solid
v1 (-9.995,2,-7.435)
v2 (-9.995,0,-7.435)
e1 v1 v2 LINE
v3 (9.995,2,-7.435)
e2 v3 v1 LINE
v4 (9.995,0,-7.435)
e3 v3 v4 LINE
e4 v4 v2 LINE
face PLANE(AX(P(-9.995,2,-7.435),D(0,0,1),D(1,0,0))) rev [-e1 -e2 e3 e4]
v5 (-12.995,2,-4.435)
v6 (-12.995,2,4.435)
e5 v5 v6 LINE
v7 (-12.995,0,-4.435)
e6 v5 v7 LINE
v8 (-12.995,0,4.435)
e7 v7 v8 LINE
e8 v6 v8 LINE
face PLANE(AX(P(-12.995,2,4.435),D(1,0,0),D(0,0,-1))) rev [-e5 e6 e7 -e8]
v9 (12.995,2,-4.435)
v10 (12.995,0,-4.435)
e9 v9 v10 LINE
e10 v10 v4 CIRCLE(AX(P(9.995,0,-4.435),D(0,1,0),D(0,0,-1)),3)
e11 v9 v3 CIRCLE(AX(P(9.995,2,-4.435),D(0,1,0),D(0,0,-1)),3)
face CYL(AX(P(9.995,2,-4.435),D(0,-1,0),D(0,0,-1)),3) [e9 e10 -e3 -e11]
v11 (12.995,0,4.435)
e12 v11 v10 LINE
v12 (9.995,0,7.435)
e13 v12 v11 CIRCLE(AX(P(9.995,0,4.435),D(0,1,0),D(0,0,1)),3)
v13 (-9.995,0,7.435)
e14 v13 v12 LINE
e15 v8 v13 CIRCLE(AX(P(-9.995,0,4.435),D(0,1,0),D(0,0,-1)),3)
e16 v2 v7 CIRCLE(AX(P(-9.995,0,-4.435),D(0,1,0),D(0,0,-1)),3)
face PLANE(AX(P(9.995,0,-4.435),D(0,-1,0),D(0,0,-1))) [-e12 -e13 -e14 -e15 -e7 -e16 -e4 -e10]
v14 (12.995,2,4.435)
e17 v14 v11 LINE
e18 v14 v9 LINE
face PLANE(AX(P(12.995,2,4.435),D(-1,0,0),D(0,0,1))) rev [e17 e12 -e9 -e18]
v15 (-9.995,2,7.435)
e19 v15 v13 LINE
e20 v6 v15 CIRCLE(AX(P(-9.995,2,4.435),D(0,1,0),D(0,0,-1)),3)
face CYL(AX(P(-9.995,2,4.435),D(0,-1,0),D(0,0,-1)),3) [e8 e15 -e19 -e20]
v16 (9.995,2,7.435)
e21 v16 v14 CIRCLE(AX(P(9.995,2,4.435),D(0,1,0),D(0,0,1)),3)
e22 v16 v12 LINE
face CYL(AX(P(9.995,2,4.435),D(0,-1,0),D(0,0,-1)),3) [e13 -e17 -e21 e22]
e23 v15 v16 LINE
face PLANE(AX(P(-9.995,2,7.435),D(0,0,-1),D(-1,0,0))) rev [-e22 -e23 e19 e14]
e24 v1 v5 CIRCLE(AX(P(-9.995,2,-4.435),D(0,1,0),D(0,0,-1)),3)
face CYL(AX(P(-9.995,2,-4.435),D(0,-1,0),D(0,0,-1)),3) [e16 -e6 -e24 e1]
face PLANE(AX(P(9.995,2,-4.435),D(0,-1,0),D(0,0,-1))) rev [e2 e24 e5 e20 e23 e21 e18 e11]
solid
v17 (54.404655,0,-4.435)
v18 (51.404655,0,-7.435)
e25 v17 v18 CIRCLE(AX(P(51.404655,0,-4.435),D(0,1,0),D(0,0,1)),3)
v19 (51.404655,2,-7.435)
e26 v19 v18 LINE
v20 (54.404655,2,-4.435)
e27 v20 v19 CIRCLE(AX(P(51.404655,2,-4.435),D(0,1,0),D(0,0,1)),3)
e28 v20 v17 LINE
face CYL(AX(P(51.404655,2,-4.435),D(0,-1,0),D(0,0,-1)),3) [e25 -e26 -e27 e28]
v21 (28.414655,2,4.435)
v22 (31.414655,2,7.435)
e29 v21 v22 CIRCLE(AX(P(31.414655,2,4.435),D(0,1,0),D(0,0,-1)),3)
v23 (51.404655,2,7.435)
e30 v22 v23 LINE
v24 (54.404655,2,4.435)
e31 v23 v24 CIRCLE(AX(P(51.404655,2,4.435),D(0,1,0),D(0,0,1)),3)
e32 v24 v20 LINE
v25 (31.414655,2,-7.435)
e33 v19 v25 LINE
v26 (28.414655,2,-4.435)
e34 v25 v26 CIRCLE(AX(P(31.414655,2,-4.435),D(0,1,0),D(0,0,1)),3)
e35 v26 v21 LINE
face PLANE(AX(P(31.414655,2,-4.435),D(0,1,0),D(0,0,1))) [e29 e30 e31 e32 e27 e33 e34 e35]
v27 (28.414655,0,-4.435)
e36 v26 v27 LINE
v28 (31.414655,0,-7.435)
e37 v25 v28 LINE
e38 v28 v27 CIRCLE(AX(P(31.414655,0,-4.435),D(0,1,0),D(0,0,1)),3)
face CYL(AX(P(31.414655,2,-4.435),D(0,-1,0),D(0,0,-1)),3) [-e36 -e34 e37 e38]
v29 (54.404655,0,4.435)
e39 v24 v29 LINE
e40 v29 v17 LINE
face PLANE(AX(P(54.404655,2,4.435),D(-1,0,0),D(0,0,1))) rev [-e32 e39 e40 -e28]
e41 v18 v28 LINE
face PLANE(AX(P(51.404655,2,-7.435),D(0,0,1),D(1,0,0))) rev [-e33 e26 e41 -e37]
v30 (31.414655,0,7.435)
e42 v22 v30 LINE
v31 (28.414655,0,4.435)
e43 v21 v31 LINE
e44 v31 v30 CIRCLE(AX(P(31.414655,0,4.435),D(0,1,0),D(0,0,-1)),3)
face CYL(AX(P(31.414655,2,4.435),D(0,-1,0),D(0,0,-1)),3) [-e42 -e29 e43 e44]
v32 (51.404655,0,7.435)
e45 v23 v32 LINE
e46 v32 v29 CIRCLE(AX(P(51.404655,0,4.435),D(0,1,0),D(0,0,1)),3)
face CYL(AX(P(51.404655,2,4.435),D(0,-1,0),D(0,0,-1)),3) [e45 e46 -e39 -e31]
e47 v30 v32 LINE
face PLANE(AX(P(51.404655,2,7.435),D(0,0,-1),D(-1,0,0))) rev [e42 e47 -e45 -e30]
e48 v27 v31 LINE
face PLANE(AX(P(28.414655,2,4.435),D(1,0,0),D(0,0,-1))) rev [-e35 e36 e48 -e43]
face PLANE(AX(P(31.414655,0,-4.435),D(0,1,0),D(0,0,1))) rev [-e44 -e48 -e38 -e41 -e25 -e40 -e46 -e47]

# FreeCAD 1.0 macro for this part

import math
import FreeCAD as App
import Part
import Sketcher
from FreeCAD import Vector
Q = App.Units.Quantity

doc = App.newDocument("Part")
body = doc.addObject("PartDesign::Body", "Body")

sketch1 = body.newObject("Sketcher::SketchObject", "Sketch")
sketch1.AttachmentSupport = (doc.getObject("XZ_Plane"), [""])
sketch1.MapMode = "FlatFace"
sketch1.addGeometry([
    Part.LineSegment(Vector(-9.995, 7.435, 0), Vector(9.995, 7.435, 0)),
    Part.ArcOfCircle(Part.Circle(Vector(9.995, 4.435, 0), Vector(0, 0, 1), 3), math.radians(0), math.radians(90)),
    Part.LineSegment(Vector(12.995, 4.435, 0), Vector(12.995, -4.435, 0)),
    Part.ArcOfCircle(Part.Circle(Vector(9.995, -4.435, 0), Vector(0, 0, 1), 3), math.radians(-90), math.radians(0)),
    Part.LineSegment(Vector(9.995, -7.435, 0), Vector(-9.995, -7.435, 0)),
    Part.ArcOfCircle(Part.Circle(Vector(-9.995, -4.435, 0), Vector(0, 0, 1), 3), math.radians(180), math.radians(270)),
    Part.LineSegment(Vector(-12.995, -4.435, 0), Vector(-12.995, 4.435, 0)),
    Part.ArcOfCircle(Part.Circle(Vector(-9.995, 4.435, 0), Vector(0, 0, 1), 3), math.radians(90), math.radians(180)),
], False)
sketch1.addConstraint([
    Sketcher.Constraint("Tangent", 0, 2, 1, 2),
    Sketcher.Constraint("Tangent", 1, 1, 2, 1),
    Sketcher.Constraint("Tangent", 2, 2, 3, 2),
    Sketcher.Constraint("Tangent", 3, 1, 4, 1),
    Sketcher.Constraint("Tangent", 4, 2, 5, 2),
    Sketcher.Constraint("Tangent", 5, 1, 6, 1),
    Sketcher.Constraint("Tangent", 6, 2, 7, 2),
    Sketcher.Constraint("Tangent", 7, 1, 0, 1),
    Sketcher.Constraint("Horizontal", 0),
    Sketcher.Constraint("Vertical", 2),
    Sketcher.Constraint("Horizontal", 4),
    Sketcher.Constraint("Vertical", 6),
    Sketcher.Constraint("Equal", 1, 3),
    Sketcher.Constraint("Equal", 3, 5),
    Sketcher.Constraint("Equal", 5, 7),
    Sketcher.Constraint("Symmetric", 1, 3, 5, 3, -1, 1),
    Sketcher.Constraint("Radius", 1, Q("3 mm")),
    Sketcher.Constraint("DistanceX", 0, 1, 0, 2, Q("19.99 mm")),
    Sketcher.Constraint("DistanceY", 2, 2, 2, 1, Q("8.87 mm")),
])
pad1 = body.newObject("PartDesign::Pad", "Pad")
pad1.Profile = sketch1
pad1.Length = 2
pad1.Reversed = True
body2 = doc.addObject("PartDesign::Body", "Body001")

sketch2 = body2.newObject("Sketcher::SketchObject", "Sketch001")
sketch2.AttachmentSupport = (doc.getObject("XZ_Plane001"), [""])
sketch2.MapMode = "FlatFace"
sketch2.addGeometry([
    Part.LineSegment(Vector(28.414655, -4.435, 0), Vector(28.414655, 4.435, 0)),
    Part.ArcOfCircle(Part.Circle(Vector(31.414655, 4.435, 0), Vector(0, 0, 1), 3), math.radians(90), math.radians(180)),
    Part.LineSegment(Vector(31.414655, 7.435, 0), Vector(51.404655, 7.435, 0)),
    Part.ArcOfCircle(Part.Circle(Vector(51.404655, 4.435, 0), Vector(0, 0, 1), 3), math.radians(0), math.radians(90)),
    Part.LineSegment(Vector(54.404655, 4.435, 0), Vector(54.404655, -4.435, 0)),
    Part.ArcOfCircle(Part.Circle(Vector(51.404655, -4.435, 0), Vector(0, 0, 1), 3), math.radians(-90), math.radians(0)),
    Part.LineSegment(Vector(51.404655, -7.435, 0), Vector(31.414655, -7.435, 0)),
    Part.ArcOfCircle(Part.Circle(Vector(31.414655, -4.435, 0), Vector(0, 0, 1), 3), math.radians(180), math.radians(270)),
], False)
sketch2.addConstraint([
    Sketcher.Constraint("Tangent", 0, 2, 1, 2),
    Sketcher.Constraint("Tangent", 1, 1, 2, 1),
    Sketcher.Constraint("Tangent", 2, 2, 3, 2),
    Sketcher.Constraint("Tangent", 3, 1, 4, 1),
    Sketcher.Constraint("Tangent", 4, 2, 5, 2),
    Sketcher.Constraint("Tangent", 5, 1, 6, 1),
    Sketcher.Constraint("Tangent", 6, 2, 7, 2),
    Sketcher.Constraint("Tangent", 7, 1, 0, 1),
    Sketcher.Constraint("Vertical", 0),
    Sketcher.Constraint("Horizontal", 2),
    Sketcher.Constraint("Vertical", 4),
    Sketcher.Constraint("Horizontal", 6),
    Sketcher.Constraint("Equal", 1, 3),
    Sketcher.Constraint("Equal", 3, 5),
    Sketcher.Constraint("Equal", 5, 7),
    Sketcher.Constraint("Radius", 1, Q("3 mm")),
    Sketcher.Constraint("DistanceX", 2, 1, 2, 2, Q("19.99 mm")),
    Sketcher.Constraint("DistanceY", 0, 1, 0, 2, Q("8.87 mm")),
    Sketcher.Constraint("DistanceY", -1, 1, 1, 3, Q("4.435 mm")),
    Sketcher.Constraint("DistanceX", -1, 1, 1, 3, Q("31.414655 mm")),
])
pad2 = body2.newObject("PartDesign::Pad", "Pad001")
pad2.Profile = sketch2
pad2.Length = 2
pad2.Reversed = True

doc.recompute()
